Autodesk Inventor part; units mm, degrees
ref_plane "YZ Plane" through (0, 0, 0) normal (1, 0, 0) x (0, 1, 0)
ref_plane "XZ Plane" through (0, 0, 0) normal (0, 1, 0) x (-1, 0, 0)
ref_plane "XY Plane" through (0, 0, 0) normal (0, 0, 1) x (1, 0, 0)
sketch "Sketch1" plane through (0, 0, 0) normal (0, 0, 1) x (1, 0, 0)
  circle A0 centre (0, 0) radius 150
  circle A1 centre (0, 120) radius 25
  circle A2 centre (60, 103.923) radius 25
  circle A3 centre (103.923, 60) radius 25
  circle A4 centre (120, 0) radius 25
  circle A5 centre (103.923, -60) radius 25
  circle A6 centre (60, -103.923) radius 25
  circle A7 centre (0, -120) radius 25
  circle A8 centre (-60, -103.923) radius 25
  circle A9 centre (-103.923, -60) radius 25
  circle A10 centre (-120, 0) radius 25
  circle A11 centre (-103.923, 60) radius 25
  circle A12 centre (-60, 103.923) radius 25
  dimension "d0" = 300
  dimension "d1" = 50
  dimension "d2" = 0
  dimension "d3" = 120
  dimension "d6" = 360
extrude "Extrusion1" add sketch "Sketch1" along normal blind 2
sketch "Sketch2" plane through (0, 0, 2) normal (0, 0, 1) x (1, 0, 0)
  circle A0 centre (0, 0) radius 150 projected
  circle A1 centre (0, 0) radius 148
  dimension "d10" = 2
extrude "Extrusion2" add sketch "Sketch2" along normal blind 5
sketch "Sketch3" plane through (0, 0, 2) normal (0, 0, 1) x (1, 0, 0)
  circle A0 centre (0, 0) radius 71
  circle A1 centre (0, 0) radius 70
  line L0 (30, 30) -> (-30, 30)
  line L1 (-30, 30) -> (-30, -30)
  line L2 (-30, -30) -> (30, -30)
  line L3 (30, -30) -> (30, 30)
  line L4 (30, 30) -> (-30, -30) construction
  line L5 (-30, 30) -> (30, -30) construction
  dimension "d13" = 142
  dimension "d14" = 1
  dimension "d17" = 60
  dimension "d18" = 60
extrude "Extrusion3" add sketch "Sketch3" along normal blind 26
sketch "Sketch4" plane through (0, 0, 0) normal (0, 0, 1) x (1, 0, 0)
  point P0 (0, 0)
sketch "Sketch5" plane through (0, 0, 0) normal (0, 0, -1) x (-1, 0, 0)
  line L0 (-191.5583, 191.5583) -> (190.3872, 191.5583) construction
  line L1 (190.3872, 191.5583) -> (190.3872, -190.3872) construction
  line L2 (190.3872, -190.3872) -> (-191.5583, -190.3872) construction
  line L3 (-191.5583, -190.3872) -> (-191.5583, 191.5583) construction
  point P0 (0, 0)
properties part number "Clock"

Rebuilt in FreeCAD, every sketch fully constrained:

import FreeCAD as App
import Part
import Sketcher

V = App.Vector


def add_polygon(sketch, points):
    """Adds a closed chain of lines whose ends are joined by coincident constraints."""
    first, n = sketch.GeometryCount, len(points)
    for a, b in zip(points, points[1:] + points[:1]):
        sketch.addGeometry(Part.LineSegment(App.Vector(*a, 0), App.Vector(*b, 0)), False)
    for i in range(n):
        sketch.addConstraint(Sketcher.Constraint("Coincident", first + i, 2, first + (i + 1) % n, 1))

doc = App.newDocument("Part")
body = doc.addObject("PartDesign::Body", "Body")

sketch1 = body.newObject("Sketcher::SketchObject", "Sketch")
sketch1.AttachmentSupport = (doc.getObject("XY_Plane"), [""])
sketch1.MapMode = "FlatFace"
sketch1.addGeometry([
    Part.Circle(V(0, 0, 0), V(0, 0, 1), 150),
    Part.Circle(V(-60, -104, 0), V(0, 0, 1), 25),
    Part.Circle(V(-104, -60, 0), V(0, 0, 1), 25),
    Part.Circle(V(0, -120, 0), V(0, 0, 1), 25),
    Part.Circle(V(60, -104, 0), V(0, 0, 1), 25),
    Part.Circle(V(104, -60, 0), V(0, 0, 1), 25),
    Part.Circle(V(-120, 0, 0), V(0, 0, 1), 25),
    Part.Circle(V(-104, 60, 0), V(0, 0, 1), 25),
    Part.Circle(V(-60, 104, 0), V(0, 0, 1), 25),
    Part.Circle(V(120, 0, 0), V(0, 0, 1), 25),
    Part.Circle(V(104, 60, 0), V(0, 0, 1), 25),
    Part.Circle(V(60, 104, 0), V(0, 0, 1), 25),
    Part.Circle(V(0, 120, 0), V(0, 0, 1), 25),
], False)
sketch1.addConstraint([
    Sketcher.Constraint("Coincident", 0, 3, -1, 1),
    Sketcher.Constraint("Equal", 1, 2),
    Sketcher.Constraint("Equal", 2, 3),
    Sketcher.Constraint("Equal", 3, 4),
    Sketcher.Constraint("Equal", 4, 5),
    Sketcher.Constraint("Equal", 5, 6),
    Sketcher.Constraint("Equal", 6, 7),
    Sketcher.Constraint("Equal", 7, 8),
    Sketcher.Constraint("Equal", 8, 9),
    Sketcher.Constraint("Equal", 9, 10),
    Sketcher.Constraint("Equal", 10, 11),
    Sketcher.Constraint("Equal", 11, 12),
    Sketcher.Constraint("Symmetric", 5, 3, 7, 3, -1, 1),
    Sketcher.Constraint("Symmetric", 4, 3, 8, 3, -1, 1),
    Sketcher.Constraint("Symmetric", 6, 3, 9, 3, -1, 1),
    Sketcher.Constraint("Symmetric", 2, 3, 10, 3, -1, 1),
    Sketcher.Constraint("Symmetric", 1, 3, 11, 3, -1, 1),
    Sketcher.Constraint("Symmetric", 3, 3, 12, 3, -1, 1),
    Sketcher.Constraint("Symmetric", 1, 3, 4, 3, -2),
    Sketcher.Constraint("Symmetric", 2, 3, 5, 3, -2),
    Sketcher.Constraint("PointOnObject", 3, 3, -2),
    Sketcher.Constraint("PointOnObject", 6, 3, -1),
    Sketcher.Constraint("Diameter", 0, 300.0),
    Sketcher.Constraint("Diameter", 1, 50.0),
    Sketcher.Constraint("DistanceY", 3, 3, -1, 1, 120.0),
    Sketcher.Constraint("DistanceX", 6, 3, -1, 1, 120.0),
    Sketcher.Constraint("DistanceX", 1, 3, 4, 3, 120.0),
    Sketcher.Constraint("DistanceY", 2, 3, 7, 3, 120.0),
    Sketcher.Constraint("DistanceY", 1, 3, -1, 1, 103.923),
    Sketcher.Constraint("DistanceX", 2, 3, -1, 1, 103.923),
])
pad1 = body.newObject("PartDesign::Pad", "Pad")
pad1.Profile = sketch1
pad1.Length = 2

sketch2 = body.newObject("Sketcher::SketchObject", "Sketch001")
sketch2.AttachmentSupport = (doc.getObject("XY_Plane"), [""])
sketch2.MapMode = "FlatFace"
sketch2.AttachmentOffset = App.Placement(V(0, 0, 2), App.Rotation())
sketch2.addGeometry([
    Part.Circle(V(0, 0, 0), V(0, 0, 1), 150),
    Part.Circle(V(0, 0, 0), V(0, 0, 1), 148),
], False)
sketch2.addConstraint([
    Sketcher.Constraint("Coincident", 0, 3, -1, 1),
    Sketcher.Constraint("Coincident", 1, 3, -1, 1),
    Sketcher.Constraint("Diameter", 0, 300.0),
    Sketcher.Constraint("Diameter", 1, 296.0),
])
pad2 = body.newObject("PartDesign::Pad", "Pad001")
pad2.Profile = sketch2
pad2.Length = 5

sketch3 = body.newObject("Sketcher::SketchObject", "Sketch002")
sketch3.AttachmentSupport = (doc.getObject("XY_Plane"), [""])
sketch3.MapMode = "FlatFace"
sketch3.AttachmentOffset = App.Placement(V(0, 0, 2), App.Rotation())
sketch3.addGeometry(Part.Circle(V(0, 0, 0), V(0, 0, 1), 71), False)
sketch3.addGeometry(Part.Circle(V(0, 0, 0), V(0, 0, 1), 70), False)
add_polygon(sketch3, [(30, -30), (30, 30), (-30, 30), (-30, -30)])
sketch3.addConstraint([
    Sketcher.Constraint("Vertical", 2),
    Sketcher.Constraint("Horizontal", 3),
    Sketcher.Constraint("Vertical", 4),
    Sketcher.Constraint("Horizontal", 5),
    Sketcher.Constraint("Coincident", 0, 3, -1, 1),
    Sketcher.Constraint("Coincident", 1, 3, -1, 1),
    Sketcher.Constraint("Symmetric", 2, 2, 4, 2, -1, 1),
    Sketcher.Constraint("Equal", 5, 2),
    Sketcher.Constraint("Diameter", 0, 142.0),
    Sketcher.Constraint("DistanceX", 3, 2, 3, 1, 60.0),
    Sketcher.Constraint("Diameter", 1, 140.0),
])
pad3 = body.newObject("PartDesign::Pad", "Pad002")
pad3.Profile = sketch3
pad3.Length = 26

doc.recompute()
